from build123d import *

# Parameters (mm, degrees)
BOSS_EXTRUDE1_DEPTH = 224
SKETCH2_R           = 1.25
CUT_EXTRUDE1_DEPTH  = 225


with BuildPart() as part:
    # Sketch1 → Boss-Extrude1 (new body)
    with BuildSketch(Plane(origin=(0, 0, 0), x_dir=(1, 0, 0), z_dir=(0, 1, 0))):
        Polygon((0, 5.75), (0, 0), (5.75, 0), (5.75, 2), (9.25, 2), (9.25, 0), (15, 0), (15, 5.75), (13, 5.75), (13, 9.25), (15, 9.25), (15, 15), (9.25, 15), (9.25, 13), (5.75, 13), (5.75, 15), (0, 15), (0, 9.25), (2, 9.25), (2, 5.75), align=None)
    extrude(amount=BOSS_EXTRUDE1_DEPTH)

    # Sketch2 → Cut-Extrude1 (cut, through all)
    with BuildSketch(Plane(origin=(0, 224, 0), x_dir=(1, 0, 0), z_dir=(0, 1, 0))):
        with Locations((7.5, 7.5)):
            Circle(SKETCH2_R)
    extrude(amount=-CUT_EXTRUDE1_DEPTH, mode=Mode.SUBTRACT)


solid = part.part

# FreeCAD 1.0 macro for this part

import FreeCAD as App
import Part
import Sketcher
Q = App.Units.Quantity

doc = App.newDocument("Part")
body = doc.addObject("PartDesign::Body", "Body")

# Sketch on XZ plane
sketch1 = body.newObject("Sketcher::SketchObject", "Sketch")
sketch1.AttachmentSupport = (doc.getObject("XZ_Plane"), [""])
sketch1.MapMode = "FlatFace"
sketch1.addGeometry([
    Part.LineSegment(App.Vector(0, -5.8, 0), App.Vector(0, 0, 0)),  # 0
    Part.LineSegment(App.Vector(0, 0, 0), App.Vector(5.8, 0, 0)),  # 1
    Part.LineSegment(App.Vector(5.8, 0, 0), App.Vector(5.8, -2, 0)),  # 2
    Part.LineSegment(App.Vector(5.8, -2, 0), App.Vector(9.2, -2, 0)),  # 3
    Part.LineSegment(App.Vector(9.2, -2, 0), App.Vector(9.2, 0, 0)),  # 4
    Part.LineSegment(App.Vector(9.2, 0, 0), App.Vector(15, 0, 0)),  # 5
    Part.LineSegment(App.Vector(15, 0, 0), App.Vector(15, -5.8, 0)),  # 6
    Part.LineSegment(App.Vector(15, -5.8, 0), App.Vector(13, -5.8, 0)),  # 7
    Part.LineSegment(App.Vector(13, -5.8, 0), App.Vector(13, -9.2, 0)),  # 8
    Part.LineSegment(App.Vector(13, -9.2, 0), App.Vector(15, -9.2, 0)),  # 9
    Part.LineSegment(App.Vector(15, -9.2, 0), App.Vector(15, -15, 0)),  # 10
    Part.LineSegment(App.Vector(15, -15, 0), App.Vector(9.2, -15, 0)),  # 11
    Part.LineSegment(App.Vector(9.2, -15, 0), App.Vector(9.2, -13, 0)),  # 12
    Part.LineSegment(App.Vector(9.2, -13, 0), App.Vector(5.8, -13, 0)),  # 13
    Part.LineSegment(App.Vector(5.8, -13, 0), App.Vector(5.8, -15, 0)),  # 14
    Part.LineSegment(App.Vector(5.8, -15, 0), App.Vector(0, -15, 0)),  # 15
    Part.LineSegment(App.Vector(0, -15, 0), App.Vector(0, -9.2, 0)),  # 16
    Part.LineSegment(App.Vector(0, -9.2, 0), App.Vector(2, -9.2, 0)),  # 17
    Part.LineSegment(App.Vector(2, -9.2, 0), App.Vector(2, -5.8, 0)),  # 18
    Part.LineSegment(App.Vector(2, -5.8, 0), App.Vector(0, -5.8, 0)),  # 19
], False)
sketch1.addConstraint([
    Sketcher.Constraint("Coincident", 0, 2, 1, 1),
    Sketcher.Constraint("Coincident", 1, 2, 2, 1),
    Sketcher.Constraint("Coincident", 2, 2, 3, 1),
    Sketcher.Constraint("Coincident", 3, 2, 4, 1),
    Sketcher.Constraint("Coincident", 4, 2, 5, 1),
    Sketcher.Constraint("Coincident", 5, 2, 6, 1),
    Sketcher.Constraint("Coincident", 6, 2, 7, 1),
    Sketcher.Constraint("Coincident", 7, 2, 8, 1),
    Sketcher.Constraint("Coincident", 8, 2, 9, 1),
    Sketcher.Constraint("Coincident", 9, 2, 10, 1),
    Sketcher.Constraint("Coincident", 10, 2, 11, 1),
    Sketcher.Constraint("Coincident", 11, 2, 12, 1),
    Sketcher.Constraint("Coincident", 12, 2, 13, 1),
    Sketcher.Constraint("Coincident", 13, 2, 14, 1),
    Sketcher.Constraint("Coincident", 14, 2, 15, 1),
    Sketcher.Constraint("Coincident", 15, 2, 16, 1),
    Sketcher.Constraint("Coincident", 16, 2, 17, 1),
    Sketcher.Constraint("Coincident", 17, 2, 18, 1),
    Sketcher.Constraint("Coincident", 18, 2, 19, 1),
    Sketcher.Constraint("Coincident", 19, 2, 0, 1),
    Sketcher.Constraint("Vertical", 0),
    Sketcher.Constraint("Horizontal", 1),
    Sketcher.Constraint("Vertical", 2),
    Sketcher.Constraint("Horizontal", 3),
    Sketcher.Constraint("Vertical", 4),
    Sketcher.Constraint("Horizontal", 5),
    Sketcher.Constraint("Vertical", 6),
    Sketcher.Constraint("Horizontal", 7),
    Sketcher.Constraint("Vertical", 8),
    Sketcher.Constraint("Horizontal", 9),
    Sketcher.Constraint("Vertical", 10),
    Sketcher.Constraint("Horizontal", 11),
    Sketcher.Constraint("Vertical", 12),
    Sketcher.Constraint("Horizontal", 13),
    Sketcher.Constraint("Vertical", 14),
    Sketcher.Constraint("Horizontal", 15),
    Sketcher.Constraint("Vertical", 16),
    Sketcher.Constraint("Horizontal", 17),
    Sketcher.Constraint("Vertical", 18),
    Sketcher.Constraint("Horizontal", 19),
    Sketcher.Constraint("Coincident", 0, 2, -1, 1),
    Sketcher.Constraint("PointOnObject", 4, 2, -1),
    Sketcher.Constraint("PointOnObject", 15, 2, -2),
    Sketcher.Constraint("Horizontal", 11, 2, 14, 2),
    Sketcher.Constraint("Horizontal", 9, 2, 16, 2),
    Sketcher.Constraint("Horizontal", 7, 2, 18, 2),
    Sketcher.Constraint("Vertical", 6, 2, 9, 2),
    Sketcher.Constraint("Vertical", 4, 2, 11, 2),
    Sketcher.Constraint("Vertical", 2, 2, 13, 2),
    Sketcher.Constraint("Equal", 1, 5),
    Sketcher.Constraint("Equal", 9, 17),
    Sketcher.Constraint("Equal", 15, 0),
    Sketcher.Constraint("Equal", 19, 2),
    Sketcher.Constraint("Equal", 13, 8),
    Sketcher.Constraint("Equal", 6, 10),
    Sketcher.Constraint("Equal", 4, 12),
    Sketcher.Constraint("DistanceX", 7, 2, 7, 1, Q("2 mm")),
    Sketcher.Constraint("DistanceX", 3, 1, 3, 2, Q("3.5 mm")),
    Sketcher.Constraint("DistanceX", -1, 1, 5, 2, Q("15 mm")),
])
pad1 = body.newObject("PartDesign::Pad", "Pad")
pad1.Profile = sketch1
pad1.Length = 224
pad1.Reversed = True

# Sketch on XZ plane
sketch2 = body.newObject("Sketcher::SketchObject", "Sketch001")
sketch2.AttachmentSupport = (doc.getObject("XZ_Plane"), [""])
sketch2.MapMode = "FlatFace"
sketch2.AttachmentOffset = App.Placement(App.Vector(0, 0, -224), App.Rotation())
sketch2.addGeometry(Part.Circle(App.Vector(7.5, -7.5, 0), App.Vector(0, 0, 1), 1.2), False)
sketch2.addConstraint([
    Sketcher.Constraint("Diameter", 0, Q("2.5 mm")),
    Sketcher.Constraint("DistanceX", -1, 1, 0, 3, Q("7.5 mm")),
    Sketcher.Constraint("DistanceY", 0, 3, -1, 1, Q("7.5 mm")),
])
pocket1 = body.newObject("PartDesign::Pocket", "Pocket")
pocket1.Profile = sketch2
pocket1.Type = "ThroughAll"
pocket1.Reversed = True

doc.recompute()
